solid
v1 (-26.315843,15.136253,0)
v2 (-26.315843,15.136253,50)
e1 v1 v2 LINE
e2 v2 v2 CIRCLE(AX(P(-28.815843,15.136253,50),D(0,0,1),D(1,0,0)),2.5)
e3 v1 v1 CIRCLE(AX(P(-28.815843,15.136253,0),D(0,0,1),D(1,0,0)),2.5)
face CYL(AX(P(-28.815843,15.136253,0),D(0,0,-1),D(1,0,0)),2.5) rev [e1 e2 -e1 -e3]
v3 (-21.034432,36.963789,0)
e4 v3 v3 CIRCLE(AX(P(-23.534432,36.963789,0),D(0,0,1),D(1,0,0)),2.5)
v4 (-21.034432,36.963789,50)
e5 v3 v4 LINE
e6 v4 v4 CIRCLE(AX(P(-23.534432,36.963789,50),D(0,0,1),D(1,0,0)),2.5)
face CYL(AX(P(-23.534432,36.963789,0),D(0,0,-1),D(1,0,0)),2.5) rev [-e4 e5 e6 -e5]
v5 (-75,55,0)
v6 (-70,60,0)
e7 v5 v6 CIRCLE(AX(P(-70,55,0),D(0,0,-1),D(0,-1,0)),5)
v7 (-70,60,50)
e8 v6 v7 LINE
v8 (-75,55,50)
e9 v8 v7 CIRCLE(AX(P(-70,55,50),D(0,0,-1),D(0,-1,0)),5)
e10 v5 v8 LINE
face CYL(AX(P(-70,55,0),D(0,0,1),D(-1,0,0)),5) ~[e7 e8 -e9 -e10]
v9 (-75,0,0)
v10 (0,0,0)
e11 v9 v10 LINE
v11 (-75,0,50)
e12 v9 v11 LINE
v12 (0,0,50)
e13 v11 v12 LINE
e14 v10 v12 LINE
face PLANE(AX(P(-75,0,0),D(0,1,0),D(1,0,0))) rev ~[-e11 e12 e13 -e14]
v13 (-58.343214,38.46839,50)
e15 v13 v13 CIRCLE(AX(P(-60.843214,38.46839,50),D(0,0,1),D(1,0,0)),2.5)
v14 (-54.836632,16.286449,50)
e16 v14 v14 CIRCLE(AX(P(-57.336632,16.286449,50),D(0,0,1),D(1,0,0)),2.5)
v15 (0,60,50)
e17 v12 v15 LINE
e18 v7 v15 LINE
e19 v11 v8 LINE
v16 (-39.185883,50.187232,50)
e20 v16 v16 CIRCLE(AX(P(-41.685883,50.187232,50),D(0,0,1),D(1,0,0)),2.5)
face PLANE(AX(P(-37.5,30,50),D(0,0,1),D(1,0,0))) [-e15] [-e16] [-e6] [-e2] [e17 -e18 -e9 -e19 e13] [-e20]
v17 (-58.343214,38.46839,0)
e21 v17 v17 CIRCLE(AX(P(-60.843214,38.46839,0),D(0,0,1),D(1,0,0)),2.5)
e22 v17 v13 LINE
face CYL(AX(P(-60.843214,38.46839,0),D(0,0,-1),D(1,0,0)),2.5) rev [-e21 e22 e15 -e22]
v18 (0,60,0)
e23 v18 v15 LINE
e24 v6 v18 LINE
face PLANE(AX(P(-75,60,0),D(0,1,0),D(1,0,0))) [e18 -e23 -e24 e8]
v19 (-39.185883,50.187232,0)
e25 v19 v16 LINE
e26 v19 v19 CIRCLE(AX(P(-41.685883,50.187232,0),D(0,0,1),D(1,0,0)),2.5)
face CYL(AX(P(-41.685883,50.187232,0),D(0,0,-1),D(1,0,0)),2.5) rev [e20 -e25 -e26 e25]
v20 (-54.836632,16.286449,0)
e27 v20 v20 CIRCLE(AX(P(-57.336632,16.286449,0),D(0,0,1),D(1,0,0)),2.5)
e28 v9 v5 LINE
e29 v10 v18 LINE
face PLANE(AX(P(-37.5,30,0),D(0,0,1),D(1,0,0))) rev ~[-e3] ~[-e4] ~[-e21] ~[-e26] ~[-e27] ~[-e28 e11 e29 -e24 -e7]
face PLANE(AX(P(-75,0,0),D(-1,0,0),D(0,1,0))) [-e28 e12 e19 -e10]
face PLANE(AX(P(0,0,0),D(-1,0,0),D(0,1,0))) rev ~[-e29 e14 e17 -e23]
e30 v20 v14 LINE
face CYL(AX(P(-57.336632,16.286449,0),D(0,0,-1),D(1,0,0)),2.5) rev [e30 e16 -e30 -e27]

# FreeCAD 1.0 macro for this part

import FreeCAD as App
import Part
import Sketcher
from FreeCAD import Vector
Q = App.Units.Quantity


def edges_at(feature, points):
    """Names of the edges that pass closest to the given points."""
    edges = feature.Shape.Edges
    near = lambda p: min(range(len(edges)), key=lambda i: edges[i].distToShape(Part.Vertex(*p))[0])
    return sorted({f"Edge{near(p) + 1}" for p in points})


def add_polygon(sketch, points):
    """Adds a closed chain of lines whose ends are joined by coincident constraints."""
    first, n = sketch.GeometryCount, len(points)
    for a, b in zip(points, points[1:] + points[:1]):
        sketch.addGeometry(Part.LineSegment(App.Vector(*a, 0), App.Vector(*b, 0)), False)
    for i in range(n):
        sketch.addConstraint(Sketcher.Constraint("Coincident", first + i, 2, first + (i + 1) % n, 1))

doc = App.newDocument("Part")
body = doc.addObject("PartDesign::Body", "Body")

# Sketch on XY plane
sketch1 = body.newObject("Sketcher::SketchObject", "Sketch")
sketch1.AttachmentSupport = (doc.getObject("XY_Plane"), [""])
sketch1.MapMode = "FlatFace"
add_polygon(sketch1, [(-75, 60), (-75, 0), (0, 0), (0, 60)])  # lines 0-3
sketch1.addGeometry(Part.Circle(Vector(-57.3, 16.3, 0), Vector(0, 0, 1), 2.5), False)  # 4
sketch1.addGeometry(Part.Circle(Vector(-28.8, 15.1, 0), Vector(0, 0, 1), 2.5), False)  # 5
sketch1.addGeometry(Part.Circle(Vector(-60.8, 38.5, 0), Vector(0, 0, 1), 2.5), False)  # 6
sketch1.addGeometry(Part.Circle(Vector(-23.5, 37, 0), Vector(0, 0, 1), 2.5), False)  # 7
sketch1.addGeometry(Part.Circle(Vector(-41.7, 50.2, 0), Vector(0, 0, 1), 2.5), False)  # 8
sketch1.addConstraint([
    Sketcher.Constraint("Vertical", 0),
    Sketcher.Constraint("Horizontal", 1),
    Sketcher.Constraint("Vertical", 2),
    Sketcher.Constraint("Horizontal", 3),
    Sketcher.Constraint("Coincident", 1, 2, -1, 1),
    Sketcher.Constraint("Equal", 4, 5),
    Sketcher.Constraint("Equal", 5, 6),
    Sketcher.Constraint("Equal", 6, 7),
    Sketcher.Constraint("Equal", 7, 8),
    Sketcher.Constraint("Diameter", 4, Q("5 mm")),
    Sketcher.Constraint("DistanceX", 1, 1, 1, 2, Q("75 mm")),
    Sketcher.Constraint("DistanceY", 0, 2, 0, 1, Q("60 mm")),
    Sketcher.Constraint("DistanceY", 7, 3, 6, 3, Q("1.504601 mm")),
    Sketcher.Constraint("DistanceX", 4, 3, 7, 3, Q("33.8022 mm")),
    Sketcher.Constraint("DistanceY", -1, 1, 4, 3, Q("16.286449 mm")),
    Sketcher.Constraint("DistanceY", -1, 1, 6, 3, Q("38.46839 mm")),
    Sketcher.Constraint("DistanceX", 7, 3, -1, 1, Q("23.534432 mm")),
    Sketcher.Constraint("DistanceX", 4, 3, 5, 3, Q("28.520789 mm")),
    Sketcher.Constraint("DistanceX", 6, 3, 5, 3, Q("32.027371 mm")),
    Sketcher.Constraint("DistanceX", 6, 3, 8, 3, Q("19.157331 mm")),
    Sketcher.Constraint("DistanceY", 5, 3, 8, 3, Q("35.050979 mm")),
    Sketcher.Constraint("DistanceY", -1, 1, 5, 3, Q("15.136253 mm")),
])
pad1 = body.newObject("PartDesign::Pad", "Pad")
pad1.Profile = sketch1
pad1.Length = 50
doc.recompute()

fillet = body.newObject("PartDesign::Fillet", "Fillet")
fillet.Base = (pad1, edges_at(pad1, [(-75, 60, 25)]))
fillet.Radius = 5

doc.recompute()
